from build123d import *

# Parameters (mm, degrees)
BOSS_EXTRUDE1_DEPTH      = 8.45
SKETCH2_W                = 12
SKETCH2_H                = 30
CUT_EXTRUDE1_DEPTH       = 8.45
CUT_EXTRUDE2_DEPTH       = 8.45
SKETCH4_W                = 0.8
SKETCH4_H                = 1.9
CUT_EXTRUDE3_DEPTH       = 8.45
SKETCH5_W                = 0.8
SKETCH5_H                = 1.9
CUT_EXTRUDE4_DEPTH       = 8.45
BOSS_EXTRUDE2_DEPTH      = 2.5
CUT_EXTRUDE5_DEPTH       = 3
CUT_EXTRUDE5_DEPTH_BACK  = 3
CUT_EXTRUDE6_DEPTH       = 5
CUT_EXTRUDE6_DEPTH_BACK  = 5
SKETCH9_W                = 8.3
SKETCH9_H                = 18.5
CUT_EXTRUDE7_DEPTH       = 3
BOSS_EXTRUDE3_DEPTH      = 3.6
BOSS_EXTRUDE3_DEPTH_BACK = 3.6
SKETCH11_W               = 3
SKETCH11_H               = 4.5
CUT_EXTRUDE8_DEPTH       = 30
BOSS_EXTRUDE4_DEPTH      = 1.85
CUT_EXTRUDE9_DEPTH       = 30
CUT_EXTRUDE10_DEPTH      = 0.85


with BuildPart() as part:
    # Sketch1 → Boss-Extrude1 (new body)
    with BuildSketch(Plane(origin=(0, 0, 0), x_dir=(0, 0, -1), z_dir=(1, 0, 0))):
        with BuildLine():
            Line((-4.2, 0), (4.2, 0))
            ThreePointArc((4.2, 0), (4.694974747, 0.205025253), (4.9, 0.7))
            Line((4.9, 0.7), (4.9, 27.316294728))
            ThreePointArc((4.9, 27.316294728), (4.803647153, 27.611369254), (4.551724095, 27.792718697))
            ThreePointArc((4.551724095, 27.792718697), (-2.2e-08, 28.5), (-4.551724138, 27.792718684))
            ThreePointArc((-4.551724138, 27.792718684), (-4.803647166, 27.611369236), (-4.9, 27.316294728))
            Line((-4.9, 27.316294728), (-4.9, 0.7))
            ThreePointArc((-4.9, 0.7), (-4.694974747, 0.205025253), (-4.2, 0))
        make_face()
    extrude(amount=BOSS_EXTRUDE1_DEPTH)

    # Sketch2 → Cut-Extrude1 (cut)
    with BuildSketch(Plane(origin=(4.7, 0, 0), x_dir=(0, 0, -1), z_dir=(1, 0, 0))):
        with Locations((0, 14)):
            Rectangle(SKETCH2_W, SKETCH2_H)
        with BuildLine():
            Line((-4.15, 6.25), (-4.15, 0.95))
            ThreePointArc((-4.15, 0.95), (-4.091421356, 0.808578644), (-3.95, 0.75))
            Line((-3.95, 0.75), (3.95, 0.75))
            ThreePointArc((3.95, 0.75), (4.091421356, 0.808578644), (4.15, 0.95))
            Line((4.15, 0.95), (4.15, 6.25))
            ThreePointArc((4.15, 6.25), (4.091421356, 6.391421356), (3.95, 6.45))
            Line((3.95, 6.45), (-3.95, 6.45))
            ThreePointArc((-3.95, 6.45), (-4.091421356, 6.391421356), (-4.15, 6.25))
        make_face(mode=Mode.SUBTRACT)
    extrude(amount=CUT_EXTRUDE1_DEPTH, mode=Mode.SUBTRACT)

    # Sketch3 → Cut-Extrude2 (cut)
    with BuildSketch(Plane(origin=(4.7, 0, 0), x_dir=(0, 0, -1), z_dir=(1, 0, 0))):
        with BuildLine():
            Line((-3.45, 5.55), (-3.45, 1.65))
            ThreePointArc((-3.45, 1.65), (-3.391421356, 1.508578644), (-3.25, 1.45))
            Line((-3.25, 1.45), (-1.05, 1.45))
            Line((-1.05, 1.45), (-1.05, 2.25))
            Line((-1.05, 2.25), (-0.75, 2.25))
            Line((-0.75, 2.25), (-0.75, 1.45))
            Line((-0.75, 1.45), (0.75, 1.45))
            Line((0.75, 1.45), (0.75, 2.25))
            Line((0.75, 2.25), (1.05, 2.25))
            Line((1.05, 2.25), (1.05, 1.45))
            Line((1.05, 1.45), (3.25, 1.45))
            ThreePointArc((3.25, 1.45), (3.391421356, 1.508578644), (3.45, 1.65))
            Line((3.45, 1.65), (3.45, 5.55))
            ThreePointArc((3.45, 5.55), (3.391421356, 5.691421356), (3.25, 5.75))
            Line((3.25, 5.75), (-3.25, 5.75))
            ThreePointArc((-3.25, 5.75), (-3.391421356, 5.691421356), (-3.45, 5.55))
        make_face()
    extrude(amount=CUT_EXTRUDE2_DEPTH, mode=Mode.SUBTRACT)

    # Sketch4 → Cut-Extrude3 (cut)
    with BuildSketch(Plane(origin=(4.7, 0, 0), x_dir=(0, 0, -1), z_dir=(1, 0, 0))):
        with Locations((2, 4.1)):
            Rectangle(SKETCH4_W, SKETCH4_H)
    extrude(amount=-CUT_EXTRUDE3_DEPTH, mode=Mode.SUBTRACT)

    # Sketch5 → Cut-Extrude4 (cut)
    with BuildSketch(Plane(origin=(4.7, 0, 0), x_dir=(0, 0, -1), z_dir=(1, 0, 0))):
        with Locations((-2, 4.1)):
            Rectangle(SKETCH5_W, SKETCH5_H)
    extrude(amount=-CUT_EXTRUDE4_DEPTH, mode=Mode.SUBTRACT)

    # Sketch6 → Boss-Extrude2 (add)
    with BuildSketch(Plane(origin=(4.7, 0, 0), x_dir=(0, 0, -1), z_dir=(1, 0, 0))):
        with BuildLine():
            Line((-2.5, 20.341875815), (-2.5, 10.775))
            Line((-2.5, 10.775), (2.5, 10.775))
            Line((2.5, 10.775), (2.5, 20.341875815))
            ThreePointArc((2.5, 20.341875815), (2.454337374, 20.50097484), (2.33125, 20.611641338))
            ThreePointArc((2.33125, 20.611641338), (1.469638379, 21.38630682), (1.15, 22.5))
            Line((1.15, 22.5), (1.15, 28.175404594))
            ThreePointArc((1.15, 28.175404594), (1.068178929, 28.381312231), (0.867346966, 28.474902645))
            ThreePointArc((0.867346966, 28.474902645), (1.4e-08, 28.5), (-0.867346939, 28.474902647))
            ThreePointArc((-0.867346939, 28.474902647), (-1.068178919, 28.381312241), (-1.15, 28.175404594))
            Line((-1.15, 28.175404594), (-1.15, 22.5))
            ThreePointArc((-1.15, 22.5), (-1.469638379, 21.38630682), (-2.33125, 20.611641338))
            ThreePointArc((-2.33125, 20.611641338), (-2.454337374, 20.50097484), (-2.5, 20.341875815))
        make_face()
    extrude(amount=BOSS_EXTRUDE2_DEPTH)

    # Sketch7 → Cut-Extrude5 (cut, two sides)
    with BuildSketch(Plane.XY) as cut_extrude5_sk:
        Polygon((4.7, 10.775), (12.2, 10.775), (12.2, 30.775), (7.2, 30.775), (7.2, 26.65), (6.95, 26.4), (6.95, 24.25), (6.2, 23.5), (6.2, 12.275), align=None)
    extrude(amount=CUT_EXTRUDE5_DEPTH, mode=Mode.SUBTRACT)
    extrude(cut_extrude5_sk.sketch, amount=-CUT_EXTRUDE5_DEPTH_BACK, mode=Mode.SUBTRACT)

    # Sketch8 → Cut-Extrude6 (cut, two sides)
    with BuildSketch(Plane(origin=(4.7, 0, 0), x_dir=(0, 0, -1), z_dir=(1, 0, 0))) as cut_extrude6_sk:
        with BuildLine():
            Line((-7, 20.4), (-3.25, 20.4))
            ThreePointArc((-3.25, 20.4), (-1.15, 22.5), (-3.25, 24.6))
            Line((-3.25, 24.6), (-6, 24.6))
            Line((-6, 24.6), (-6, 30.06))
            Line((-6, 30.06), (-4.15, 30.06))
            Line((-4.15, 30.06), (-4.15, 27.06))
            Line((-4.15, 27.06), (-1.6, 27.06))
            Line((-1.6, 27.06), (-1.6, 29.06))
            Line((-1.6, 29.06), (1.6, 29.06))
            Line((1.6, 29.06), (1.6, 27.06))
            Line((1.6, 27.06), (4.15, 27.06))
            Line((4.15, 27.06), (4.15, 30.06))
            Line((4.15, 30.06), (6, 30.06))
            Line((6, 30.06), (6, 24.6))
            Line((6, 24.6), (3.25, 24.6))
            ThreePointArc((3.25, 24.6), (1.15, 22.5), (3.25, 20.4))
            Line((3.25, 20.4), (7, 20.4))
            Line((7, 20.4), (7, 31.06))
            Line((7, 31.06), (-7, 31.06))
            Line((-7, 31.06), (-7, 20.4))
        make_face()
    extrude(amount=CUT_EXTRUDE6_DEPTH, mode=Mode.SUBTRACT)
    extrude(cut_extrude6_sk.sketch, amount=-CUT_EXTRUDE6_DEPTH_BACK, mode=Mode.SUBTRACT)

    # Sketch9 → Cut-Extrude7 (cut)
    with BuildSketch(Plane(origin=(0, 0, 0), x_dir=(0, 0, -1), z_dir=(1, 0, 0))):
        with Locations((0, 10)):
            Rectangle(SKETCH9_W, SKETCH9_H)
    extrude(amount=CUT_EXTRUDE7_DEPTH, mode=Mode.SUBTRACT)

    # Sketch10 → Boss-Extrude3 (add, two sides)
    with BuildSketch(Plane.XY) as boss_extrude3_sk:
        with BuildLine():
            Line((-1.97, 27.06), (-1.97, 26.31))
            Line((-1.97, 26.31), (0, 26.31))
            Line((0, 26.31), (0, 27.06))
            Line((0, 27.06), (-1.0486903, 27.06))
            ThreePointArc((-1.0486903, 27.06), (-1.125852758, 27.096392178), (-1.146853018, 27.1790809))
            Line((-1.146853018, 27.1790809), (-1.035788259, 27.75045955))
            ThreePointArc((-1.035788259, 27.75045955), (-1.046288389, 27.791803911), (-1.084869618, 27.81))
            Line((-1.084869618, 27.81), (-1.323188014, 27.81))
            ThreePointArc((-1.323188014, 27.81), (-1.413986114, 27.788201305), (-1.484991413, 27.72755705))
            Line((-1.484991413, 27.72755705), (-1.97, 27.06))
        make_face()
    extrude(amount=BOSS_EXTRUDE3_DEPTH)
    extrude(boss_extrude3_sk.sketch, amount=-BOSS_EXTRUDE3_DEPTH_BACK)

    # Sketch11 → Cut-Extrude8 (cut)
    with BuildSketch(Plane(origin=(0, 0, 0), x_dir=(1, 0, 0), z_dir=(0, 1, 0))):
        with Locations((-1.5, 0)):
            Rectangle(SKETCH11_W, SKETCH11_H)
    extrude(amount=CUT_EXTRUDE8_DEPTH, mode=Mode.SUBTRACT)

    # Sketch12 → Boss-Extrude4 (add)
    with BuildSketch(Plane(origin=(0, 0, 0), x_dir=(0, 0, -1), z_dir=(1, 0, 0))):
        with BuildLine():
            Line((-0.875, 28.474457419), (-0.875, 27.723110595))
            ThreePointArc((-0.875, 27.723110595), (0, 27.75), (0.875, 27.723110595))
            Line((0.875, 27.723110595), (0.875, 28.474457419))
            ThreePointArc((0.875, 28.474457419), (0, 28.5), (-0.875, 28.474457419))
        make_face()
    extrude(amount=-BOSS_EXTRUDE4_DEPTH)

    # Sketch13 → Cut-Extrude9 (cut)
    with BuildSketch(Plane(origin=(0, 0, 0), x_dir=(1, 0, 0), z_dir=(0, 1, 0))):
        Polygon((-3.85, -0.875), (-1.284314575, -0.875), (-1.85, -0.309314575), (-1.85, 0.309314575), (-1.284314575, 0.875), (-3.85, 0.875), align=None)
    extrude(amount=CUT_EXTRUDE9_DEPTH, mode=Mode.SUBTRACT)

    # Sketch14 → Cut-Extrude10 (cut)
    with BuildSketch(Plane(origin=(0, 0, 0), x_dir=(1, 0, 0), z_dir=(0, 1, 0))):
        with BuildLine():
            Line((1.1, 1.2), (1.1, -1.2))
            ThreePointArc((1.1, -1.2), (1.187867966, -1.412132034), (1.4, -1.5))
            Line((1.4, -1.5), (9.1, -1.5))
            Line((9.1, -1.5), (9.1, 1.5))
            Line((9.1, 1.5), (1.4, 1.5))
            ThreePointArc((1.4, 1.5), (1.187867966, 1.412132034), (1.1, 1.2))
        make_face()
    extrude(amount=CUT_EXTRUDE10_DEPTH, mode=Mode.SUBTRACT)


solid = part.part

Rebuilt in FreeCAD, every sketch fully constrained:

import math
import FreeCAD as App
import Part
import Sketcher
Q = App.Units.Quantity

doc = App.newDocument("Part")
body = doc.addObject("PartDesign::Body", "Body")

# Sketch on YZ plane
sketch1 = doc.addObject("Sketcher::SketchObject", "Sketch")
body.addObject(sketch1)
sketch1.AttachmentSupport = (doc.YZ_Plane, [""])
sketch1.MapMode = "FlatFace"
sketch1.addGeometry([
    Part.LineSegment(App.Vector(0, 4.2, 0), App.Vector(0, -4.2, 0)),  # 0
    Part.ArcOfCircle(Part.Circle(App.Vector(0.7, -4.2, 0), App.Vector(0, 0, 1), 0.7), math.radians(180), math.radians(270)),  # 1
    Part.LineSegment(App.Vector(0.7, -4.9, 0), App.Vector(27.32, -4.9, 0)),  # 2
    Part.ArcOfCircle(Part.Circle(App.Vector(27.32, -4.4, 0), App.Vector(0, 0, 1), 0.5), math.radians(-90), math.radians(-18)),  # 3
    Part.ArcOfCircle(Part.Circle(App.Vector(13.5, 0, 0), App.Vector(0, 0, 1), 15), math.radians(-18), math.radians(18)),  # 4
    Part.ArcOfCircle(Part.Circle(App.Vector(27.32, 4.4, 0), App.Vector(0, 0, 1), 0.5), math.radians(18), math.radians(90)),  # 5
    Part.LineSegment(App.Vector(27.32, 4.9, 0), App.Vector(0.7, 4.9, 0)),  # 6
    Part.ArcOfCircle(Part.Circle(App.Vector(0.7, 4.2, 0), App.Vector(0, 0, 1), 0.7), math.radians(90), math.radians(180)),  # 7
], False)
sketch1.addConstraint([
    Sketcher.Constraint("Tangent", 0, 2, 1, 1),
    Sketcher.Constraint("Tangent", 1, 2, 2, 1),
    Sketcher.Constraint("Tangent", 2, 2, 3, 1),
    Sketcher.Constraint("Tangent", 3, 2, 4, 1),
    Sketcher.Constraint("Tangent", 4, 2, 5, 1),
    Sketcher.Constraint("Tangent", 5, 2, 6, 1),
    Sketcher.Constraint("Tangent", 6, 2, 7, 1),
    Sketcher.Constraint("Tangent", 7, 2, 0, 1),
    Sketcher.Constraint("Vertical", 0),
    Sketcher.Constraint("Horizontal", 2),
    Sketcher.Constraint("Horizontal", 6),
    Sketcher.Constraint("Equal", 3, 5),
    Sketcher.Constraint("Equal", 1, 7),
    Sketcher.Constraint("Symmetric", 0, 2, 7, 2, -1, 1),
    Sketcher.Constraint("PointOnObject", 4, 3, -1),
    Sketcher.Constraint("Radius", 4, 15.0),
    Sketcher.Constraint("Radius", 1, 0.7),
    Sketcher.Constraint("Radius", 3, 0.5),
    Sketcher.Constraint("DistanceY", 0, 2, 0, 1, 8.4),
    Sketcher.Constraint("DistanceX", -1, 1, 4, 3, 13.5),
])
pad1 = doc.addObject("PartDesign::Pad", "Pad")
body.addObject(pad1)
pad1.Profile = sketch1
pad1.Length = 8.45

# Sketch on YZ plane
sketch2 = doc.addObject("Sketcher::SketchObject", "Sketch001")
body.addObject(sketch2)
sketch2.AttachmentSupport = (doc.YZ_Plane, [""])
sketch2.MapMode = "FlatFace"
sketch2.AttachmentOffset = App.Placement(App.Vector(0, 0, 4.7), App.Rotation())
sketch2.addGeometry([
    Part.LineSegment(App.Vector(29, 6, 0), App.Vector(-1, 6, 0)),  # 0
    Part.LineSegment(App.Vector(-1, 6, 0), App.Vector(-1, -6, 0)),  # 1
    Part.LineSegment(App.Vector(-1, -6, 0), App.Vector(29, -6, 0)),  # 2
    Part.LineSegment(App.Vector(29, -6, 0), App.Vector(29, 6, 0)),  # 3
    Part.LineSegment(App.Vector(0.95, 4.15, 0), App.Vector(6.25, 4.15, 0)),  # 4
    Part.ArcOfCircle(Part.Circle(App.Vector(6.25, 3.95, 0), App.Vector(0, 0, 1), 0.2), math.radians(0), math.radians(90)),  # 5
    Part.LineSegment(App.Vector(6.45, 3.95, 0), App.Vector(6.45, -3.95, 0)),  # 6
    Part.ArcOfCircle(Part.Circle(App.Vector(6.25, -3.95, 0), App.Vector(0, 0, 1), 0.2), math.radians(-90), math.radians(0)),  # 7
    Part.LineSegment(App.Vector(6.25, -4.15, 0), App.Vector(0.95, -4.15, 0)),  # 8
    Part.ArcOfCircle(Part.Circle(App.Vector(0.95, -3.95, 0), App.Vector(0, 0, 1), 0.2), math.radians(-180), math.radians(-90)),  # 9
    Part.LineSegment(App.Vector(0.75, -3.95, 0), App.Vector(0.75, 3.95, 0)),  # 10
    Part.ArcOfCircle(Part.Circle(App.Vector(0.95, 3.95, 0), App.Vector(0, 0, 1), 0.2), math.radians(90), math.radians(180)),  # 11
], False)
sketch2.addConstraint([
    Sketcher.Constraint("Coincident", 0, 2, 1, 1),
    Sketcher.Constraint("Coincident", 1, 2, 2, 1),
    Sketcher.Constraint("Coincident", 2, 2, 3, 1),
    Sketcher.Constraint("Coincident", 3, 2, 0, 1),
    Sketcher.Constraint("Tangent", 4, 2, 5, 2),
    Sketcher.Constraint("Tangent", 5, 1, 6, 1),
    Sketcher.Constraint("Tangent", 6, 2, 7, 2),
    Sketcher.Constraint("Tangent", 7, 1, 8, 1),
    Sketcher.Constraint("Tangent", 8, 2, 9, 2),
    Sketcher.Constraint("Tangent", 9, 1, 10, 1),
    Sketcher.Constraint("Tangent", 10, 2, 11, 2),
    Sketcher.Constraint("Tangent", 11, 1, 4, 1),
    Sketcher.Constraint("Horizontal", 0),
    Sketcher.Constraint("Vertical", 1),
    Sketcher.Constraint("Horizontal", 2),
    Sketcher.Constraint("Vertical", 3),
    Sketcher.Constraint("Horizontal", 4),
    Sketcher.Constraint("Vertical", 6),
    Sketcher.Constraint("Horizontal", 8),
    Sketcher.Constraint("Vertical", 10),
    Sketcher.Constraint("Equal", 5, 7),
    Sketcher.Constraint("Equal", 7, 9),
    Sketcher.Constraint("Equal", 9, 11),
    Sketcher.Constraint("Radius", 5, 0.2),
    Sketcher.Constraint("DistanceX", 0, 2, 0, 1, 30.0),
    Sketcher.Constraint("DistanceY", 1, 2, 1, 1, 12.0),
    Sketcher.Constraint("DistanceX", 4, 1, 4, 2, 5.3),
    Sketcher.Constraint("DistanceY", 6, 2, 6, 1, 7.9),
    Sketcher.Constraint("DistanceX", 0, 2, -1, 1, 1.0),
    Sketcher.Constraint("DistanceY", -1, 1, 0, 2, 6.0),
    Sketcher.Constraint("DistanceX", -1, 1, 5, 3, 6.25),
    Sketcher.Constraint("DistanceY", -1, 1, 5, 3, 3.95),
])
pocket1 = doc.addObject("PartDesign::Pocket", "Pocket")
body.addObject(pocket1)
pocket1.Profile = sketch2
pocket1.Length = 8.45
pocket1.Reversed = True

# Sketch on YZ plane
sketch3 = doc.addObject("Sketcher::SketchObject", "Sketch002")
body.addObject(sketch3)
sketch3.AttachmentSupport = (doc.YZ_Plane, [""])
sketch3.MapMode = "FlatFace"
sketch3.AttachmentOffset = App.Placement(App.Vector(0, 0, 4.7), App.Rotation())
sketch3.addGeometry([
    Part.LineSegment(App.Vector(5.55, 3.45, 0), App.Vector(1.65, 3.45, 0)),  # 0
    Part.ArcOfCircle(Part.Circle(App.Vector(1.65, 3.25, 0), App.Vector(0, 0, 1), 0.2), math.radians(90), math.radians(180)),  # 1
    Part.LineSegment(App.Vector(1.45, 3.25, 0), App.Vector(1.45, 1.05, 0)),  # 2
    Part.LineSegment(App.Vector(1.45, 1.05, 0), App.Vector(2.25, 1.05, 0)),  # 3
    Part.LineSegment(App.Vector(2.25, 1.05, 0), App.Vector(2.25, 0.75, 0)),  # 4
    Part.LineSegment(App.Vector(2.25, 0.75, 0), App.Vector(1.45, 0.75, 0)),  # 5
    Part.LineSegment(App.Vector(1.45, 0.75, 0), App.Vector(1.45, -0.75, 0)),  # 6
    Part.LineSegment(App.Vector(1.45, -0.75, 0), App.Vector(2.25, -0.75, 0)),  # 7
    Part.LineSegment(App.Vector(2.25, -0.75, 0), App.Vector(2.25, -1.05, 0)),  # 8
    Part.LineSegment(App.Vector(2.25, -1.05, 0), App.Vector(1.45, -1.05, 0)),  # 9
    Part.LineSegment(App.Vector(1.45, -1.05, 0), App.Vector(1.45, -3.25, 0)),  # 10
    Part.ArcOfCircle(Part.Circle(App.Vector(1.65, -3.25, 0), App.Vector(0, 0, 1), 0.2), math.radians(-180), math.radians(-90)),  # 11
    Part.LineSegment(App.Vector(1.65, -3.45, 0), App.Vector(5.55, -3.45, 0)),  # 12
    Part.ArcOfCircle(Part.Circle(App.Vector(5.55, -3.25, 0), App.Vector(0, 0, 1), 0.2), math.radians(-90), math.radians(0)),  # 13
    Part.LineSegment(App.Vector(5.75, -3.25, 0), App.Vector(5.75, 3.25, 0)),  # 14
    Part.ArcOfCircle(Part.Circle(App.Vector(5.55, 3.25, 0), App.Vector(0, 0, 1), 0.2), math.radians(0), math.radians(90)),  # 15
], False)
sketch3.addConstraint([
    Sketcher.Constraint("Tangent", 0, 2, 1, 1),
    Sketcher.Constraint("Tangent", 1, 2, 2, 1),
    Sketcher.Constraint("Coincident", 2, 2, 3, 1),
    Sketcher.Constraint("Coincident", 3, 2, 4, 1),
    Sketcher.Constraint("Coincident", 4, 2, 5, 1),
    Sketcher.Constraint("Coincident", 5, 2, 6, 1),
    Sketcher.Constraint("Coincident", 6, 2, 7, 1),
    Sketcher.Constraint("Coincident", 7, 2, 8, 1),
    Sketcher.Constraint("Coincident", 8, 2, 9, 1),
    Sketcher.Constraint("Coincident", 9, 2, 10, 1),
    Sketcher.Constraint("Tangent", 10, 2, 11, 1),
    Sketcher.Constraint("Tangent", 11, 2, 12, 1),
    Sketcher.Constraint("Tangent", 12, 2, 13, 1),
    Sketcher.Constraint("Tangent", 13, 2, 14, 1),
    Sketcher.Constraint("Tangent", 14, 2, 15, 1),
    Sketcher.Constraint("Tangent", 15, 2, 0, 1),
    Sketcher.Constraint("Horizontal", 0),
    Sketcher.Constraint("Vertical", 2),
    Sketcher.Constraint("Horizontal", 3),
    Sketcher.Constraint("Vertical", 4),
    Sketcher.Constraint("Horizontal", 5),
    Sketcher.Constraint("Vertical", 6),
    Sketcher.Constraint("Horizontal", 7),
    Sketcher.Constraint("Vertical", 8),
    Sketcher.Constraint("Horizontal", 9),
    Sketcher.Constraint("Vertical", 10),
    Sketcher.Constraint("Horizontal", 12),
    Sketcher.Constraint("Vertical", 14),
    Sketcher.Constraint("Equal", 1, 11),
    Sketcher.Constraint("Equal", 11, 13),
    Sketcher.Constraint("Equal", 13, 15),
    Sketcher.Constraint("Symmetric", 1, 3, 11, 3, -1),
    Sketcher.Constraint("Symmetric", 4, 2, 7, 2, -1),
    Sketcher.Constraint("Vertical", 2, 2, 5, 2),
    Sketcher.Constraint("Equal", 4, 8),
    Sketcher.Constraint("Radius", 1, 0.2),
    Sketcher.Constraint("DistanceX", 0, 2, 0, 1, 3.9),
    Sketcher.Constraint("DistanceX", 3, 1, 3, 2, 0.8),
    Sketcher.Constraint("DistanceY", 2, 2, 2, 1, 2.2),
    Sketcher.Constraint("DistanceY", 4, 2, 4, 1, 0.3),
    Sketcher.Constraint("DistanceY", 6, 2, 6, 1, 1.5),
    Sketcher.Constraint("DistanceX", -1, 1, 1, 3, 1.65),
])
pocket2 = doc.addObject("PartDesign::Pocket", "Pocket001")
body.addObject(pocket2)
pocket2.Profile = sketch3
pocket2.Length = 8.45
pocket2.Reversed = True

# Sketch on YZ plane
sketch4 = doc.addObject("Sketcher::SketchObject", "Sketch003")
body.addObject(sketch4)
sketch4.AttachmentSupport = (doc.YZ_Plane, [""])
sketch4.MapMode = "FlatFace"
sketch4.AttachmentOffset = App.Placement(App.Vector(0, 0, 4.7), App.Rotation())
sketch4.addGeometry([
    Part.LineSegment(App.Vector(5, -1.6, 0), App.Vector(3.1, -1.6, 0)),
    Part.LineSegment(App.Vector(3.1, -1.6, 0), App.Vector(3.1, -2.4, 0)),
    Part.LineSegment(App.Vector(3.1, -2.4, 0), App.Vector(5, -2.4, 0)),
    Part.LineSegment(App.Vector(5, -2.4, 0), App.Vector(5, -1.6, 0)),
], False)
sketch4.addConstraint([
    Sketcher.Constraint("Coincident", 0, 2, 1, 1),
    Sketcher.Constraint("Coincident", 1, 2, 2, 1),
    Sketcher.Constraint("Coincident", 2, 2, 3, 1),
    Sketcher.Constraint("Coincident", 3, 2, 0, 1),
    Sketcher.Constraint("Horizontal", 0),
    Sketcher.Constraint("Vertical", 1),
    Sketcher.Constraint("Horizontal", 2),
    Sketcher.Constraint("Vertical", 3),
    Sketcher.Constraint("DistanceX", 0, 2, 0, 1, 1.9),
    Sketcher.Constraint("DistanceY", 1, 2, 1, 1, 0.8),
    Sketcher.Constraint("DistanceY", 0, 2, -1, 1, 1.6),
    Sketcher.Constraint("DistanceX", -1, 1, 0, 2, 3.15),
])
pocket3 = doc.addObject("PartDesign::Pocket", "Pocket002")
body.addObject(pocket3)
pocket3.Profile = sketch4
pocket3.Length = 8.45

# Sketch on YZ plane
sketch5 = doc.addObject("Sketcher::SketchObject", "Sketch004")
body.addObject(sketch5)
sketch5.AttachmentSupport = (doc.YZ_Plane, [""])
sketch5.MapMode = "FlatFace"
sketch5.AttachmentOffset = App.Placement(App.Vector(0, 0, 4.7), App.Rotation())
sketch5.addGeometry([
    Part.LineSegment(App.Vector(5, 2.4, 0), App.Vector(3.1, 2.4, 0)),
    Part.LineSegment(App.Vector(3.1, 2.4, 0), App.Vector(3.1, 1.6, 0)),
    Part.LineSegment(App.Vector(3.1, 1.6, 0), App.Vector(5, 1.6, 0)),
    Part.LineSegment(App.Vector(5, 1.6, 0), App.Vector(5, 2.4, 0)),
], False)
sketch5.addConstraint([
    Sketcher.Constraint("Coincident", 0, 2, 1, 1),
    Sketcher.Constraint("Coincident", 1, 2, 2, 1),
    Sketcher.Constraint("Coincident", 2, 2, 3, 1),
    Sketcher.Constraint("Coincident", 3, 2, 0, 1),
    Sketcher.Constraint("Horizontal", 0),
    Sketcher.Constraint("Vertical", 1),
    Sketcher.Constraint("Horizontal", 2),
    Sketcher.Constraint("Vertical", 3),
    Sketcher.Constraint("DistanceX", 0, 2, 0, 1, 1.9),
    Sketcher.Constraint("DistanceY", 1, 2, 1, 1, 0.8),
    Sketcher.Constraint("DistanceY", -1, 1, 0, 2, 2.4),
    Sketcher.Constraint("DistanceX", -1, 1, 0, 2, 3.15),
])
pocket4 = doc.addObject("PartDesign::Pocket", "Pocket003")
body.addObject(pocket4)
pocket4.Profile = sketch5
pocket4.Length = 8.45

# Sketch on YZ plane
sketch6 = doc.addObject("Sketcher::SketchObject", "Sketch005")
body.addObject(sketch6)
sketch6.AttachmentSupport = (doc.YZ_Plane, [""])
sketch6.MapMode = "FlatFace"
sketch6.AttachmentOffset = App.Placement(App.Vector(0, 0, 4.7), App.Rotation())
sketch6.addGeometry([
    Part.LineSegment(App.Vector(20.34, 2.5, 0), App.Vector(10.78, 2.5, 0)),  # 0
    Part.LineSegment(App.Vector(10.78, 2.5, 0), App.Vector(10.78, -2.5, 0)),  # 1
    Part.LineSegment(App.Vector(10.78, -2.5, 0), App.Vector(20.34, -2.5, 0)),  # 2
    Part.ArcOfCircle(Part.Circle(App.Vector(20.34, -2.2, 0), App.Vector(0, 0, 1), 0.3), math.radians(-90), math.radians(-26)),  # 3
    Part.ArcOfCircle(Part.Circle(App.Vector(22.5, -3.25, 0), App.Vector(0, 0, 1), 2.1), math.radians(90), math.radians(154)),  # 4
    Part.LineSegment(App.Vector(22.5, -1.15, 0), App.Vector(28.18, -1.15, 0)),  # 5
    Part.ArcOfCircle(Part.Circle(App.Vector(28.18, -0.85, 0), App.Vector(0, 0, 1), 0.3), math.radians(-90), math.radians(-3)),  # 6
    Part.ArcOfCircle(Part.Circle(App.Vector(13.5, 0, 0), App.Vector(0, 0, 1), 15), math.radians(-3.31), math.radians(3.31)),  # 7
    Part.ArcOfCircle(Part.Circle(App.Vector(28.18, 0.85, 0), App.Vector(0, 0, 1), 0.3), math.radians(3), math.radians(90)),  # 8
    Part.LineSegment(App.Vector(28.18, 1.15, 0), App.Vector(22.5, 1.15, 0)),  # 9
    Part.ArcOfCircle(Part.Circle(App.Vector(22.5, 3.25, 0), App.Vector(0, 0, 1), 2.1), math.radians(-154), math.radians(-90)),  # 10
    Part.ArcOfCircle(Part.Circle(App.Vector(20.34, 2.2, 0), App.Vector(0, 0, 1), 0.3), math.radians(26), math.radians(90)),  # 11
], False)
sketch6.addConstraint([
    Sketcher.Constraint("Coincident", 0, 2, 1, 1),
    Sketcher.Constraint("Coincident", 1, 2, 2, 1),
    Sketcher.Constraint("Tangent", 2, 2, 3, 1),
    Sketcher.Constraint("Tangent", 3, 2, 4, 2),
    Sketcher.Constraint("Tangent", 4, 1, 5, 1),
    Sketcher.Constraint("Tangent", 5, 2, 6, 1),
    Sketcher.Constraint("Tangent", 6, 2, 7, 1),
    Sketcher.Constraint("Tangent", 7, 2, 8, 1),
    Sketcher.Constraint("Tangent", 8, 2, 9, 1),
    Sketcher.Constraint("Tangent", 9, 2, 10, 2),
    Sketcher.Constraint("Tangent", 10, 1, 11, 1),
    Sketcher.Constraint("Tangent", 11, 2, 0, 1),
    Sketcher.Constraint("Horizontal", 0),
    Sketcher.Constraint("Vertical", 1),
    Sketcher.Constraint("Horizontal", 2),
    Sketcher.Constraint("Horizontal", 5),
    Sketcher.Constraint("Horizontal", 9),
    Sketcher.Constraint("Equal", 3, 6),
    Sketcher.Constraint("Equal", 6, 8),
    Sketcher.Constraint("Equal", 4, 10),
    Sketcher.Constraint("Equal", 8, 11),
    Sketcher.Constraint("Symmetric", 6, 3, 8, 3, -1),
    Sketcher.Constraint("Symmetric", 3, 3, 11, 3, -1),
    Sketcher.Constraint("Radius", 7, 15.0),
    Sketcher.Constraint("Radius", 3, 0.3),
    Sketcher.Constraint("Radius", 4, 2.1),
    Sketcher.Constraint("DistanceY", 1, 2, 1, 1, 5.0),
    Sketcher.Constraint("DistanceX", 7, 3, 4, 3, 9.0),
    Sketcher.Constraint("DistanceY", 5, 2, 8, 3, 2.0),
    Sketcher.Constraint("DistanceX", -1, 1, 4, 3, 22.5),
    Sketcher.Constraint("DistanceX", -1, 1, 0, 2, 10.775),
])
pad2 = doc.addObject("PartDesign::Pad", "Pad001")
body.addObject(pad2)
pad2.Profile = sketch6
pad2.Length = 2.5

# Sketch on XY plane
sketch7 = doc.addObject("Sketcher::SketchObject", "Sketch006")
body.addObject(sketch7)
sketch7.AttachmentSupport = (doc.XY_Plane, [""])
sketch7.MapMode = "FlatFace"
sketch7.addGeometry([
    Part.LineSegment(App.Vector(4.7, 10.78, 0), App.Vector(12.2, 10.78, 0)),  # 0
    Part.LineSegment(App.Vector(12.2, 10.78, 0), App.Vector(12.2, 30.77, 0)),  # 1
    Part.LineSegment(App.Vector(12.2, 30.77, 0), App.Vector(7.2, 30.77, 0)),  # 2
    Part.LineSegment(App.Vector(7.2, 30.77, 0), App.Vector(7.2, 26.65, 0)),  # 3
    Part.LineSegment(App.Vector(7.2, 26.65, 0), App.Vector(6.95, 26.4, 0)),  # 4
    Part.LineSegment(App.Vector(6.95, 26.4, 0), App.Vector(6.95, 24.25, 0)),  # 5
    Part.LineSegment(App.Vector(6.95, 24.25, 0), App.Vector(6.2, 23.5, 0)),  # 6
    Part.LineSegment(App.Vector(6.2, 23.5, 0), App.Vector(6.2, 12.28, 0)),  # 7
    Part.LineSegment(App.Vector(6.2, 12.28, 0), App.Vector(4.7, 10.78, 0)),  # 8
], False)
sketch7.addConstraint([
    Sketcher.Constraint("Coincident", 0, 2, 1, 1),
    Sketcher.Constraint("Coincident", 1, 2, 2, 1),
    Sketcher.Constraint("Coincident", 2, 2, 3, 1),
    Sketcher.Constraint("Coincident", 3, 2, 4, 1),
    Sketcher.Constraint("Coincident", 4, 2, 5, 1),
    Sketcher.Constraint("Coincident", 5, 2, 6, 1),
    Sketcher.Constraint("Coincident", 6, 2, 7, 1),
    Sketcher.Constraint("Coincident", 7, 2, 8, 1),
    Sketcher.Constraint("Coincident", 8, 2, 0, 1),
    Sketcher.Constraint("Horizontal", 0),
    Sketcher.Constraint("Vertical", 1),
    Sketcher.Constraint("Horizontal", 2),
    Sketcher.Constraint("Vertical", 3),
    Sketcher.Constraint("Vertical", 5),
    Sketcher.Constraint("Vertical", 7),
    Sketcher.Constraint("Parallel", 4, 6),
    Sketcher.Constraint("Parallel", 6, 8),
    Sketcher.Constraint("DistanceX", 2, 2, 2, 1, 5.0),
    Sketcher.Constraint("DistanceY", 1, 1, 1, 2, 20.0),
    Sketcher.Constraint("Angle", 4, Q("-135 deg")),
    Sketcher.Constraint("DistanceX", 0, 1, 0, 2, 7.5),
    Sketcher.Constraint("DistanceX", 6, 2, 3, 2, 1.0),
    Sketcher.Constraint("DistanceY", 5, 2, 5, 1, 2.15),
    Sketcher.Constraint("DistanceX", -1, 1, 0, 2, 12.2),
    Sketcher.Constraint("DistanceY", -1, 1, 4, 2, 26.4),
    Sketcher.Constraint("DistanceY", -1, 1, 6, 2, 23.5),
    Sketcher.Constraint("DistanceY", 3, 2, 3, 1, 4.125),
])
pocket5 = doc.addObject("PartDesign::Pocket", "Pocket004")
body.addObject(pocket5)
pocket5.Profile = sketch7
pocket5.Type = "ThroughAll"
pocket5.Midplane = True

# Sketch on YZ plane
sketch8 = doc.addObject("Sketcher::SketchObject", "Sketch007")
body.addObject(sketch8)
sketch8.AttachmentSupport = (doc.YZ_Plane, [""])
sketch8.MapMode = "FlatFace"
sketch8.AttachmentOffset = App.Placement(App.Vector(0, 0, 4.7), App.Rotation())
sketch8.addGeometry([
    Part.LineSegment(App.Vector(20.4, 7, 0), App.Vector(20.4, 3.2, 0)),  # 0
    Part.ArcOfCircle(Part.Circle(App.Vector(22.5, 3.2, 0), App.Vector(0, 0, 1), 2.1), math.radians(180), math.radians(360)),  # 1
    Part.LineSegment(App.Vector(24.6, 3.2, 0), App.Vector(24.6, 6, 0)),  # 2
    Part.LineSegment(App.Vector(24.6, 6, 0), App.Vector(30.1, 6, 0)),  # 3
    Part.LineSegment(App.Vector(30.1, 6, 0), App.Vector(30.1, 4.2, 0)),  # 4
    Part.LineSegment(App.Vector(30.1, 4.2, 0), App.Vector(27.1, 4.2, 0)),  # 5
    Part.LineSegment(App.Vector(27.1, 4.2, 0), App.Vector(27.1, 1.6, 0)),  # 6
    Part.LineSegment(App.Vector(27.1, 1.6, 0), App.Vector(29.1, 1.6, 0)),  # 7
    Part.LineSegment(App.Vector(29.1, 1.6, 0), App.Vector(29.1, -1.6, 0)),  # 8
    Part.LineSegment(App.Vector(29.1, -1.6, 0), App.Vector(27.1, -1.6, 0)),  # 9
    Part.LineSegment(App.Vector(27.1, -1.6, 0), App.Vector(27.1, -4.2, 0)),  # 10
    Part.LineSegment(App.Vector(27.1, -4.2, 0), App.Vector(30.1, -4.2, 0)),  # 11
    Part.LineSegment(App.Vector(30.1, -4.2, 0), App.Vector(30.1, -6, 0)),  # 12
    Part.LineSegment(App.Vector(30.1, -6, 0), App.Vector(24.6, -6, 0)),  # 13
    Part.LineSegment(App.Vector(24.6, -6, 0), App.Vector(24.6, -3.2, 0)),  # 14
    Part.ArcOfCircle(Part.Circle(App.Vector(22.5, -3.2, 0), App.Vector(0, 0, 1), 2.1), math.radians(0), math.radians(180)),  # 15
    Part.LineSegment(App.Vector(20.4, -3.2, 0), App.Vector(20.4, -7, 0)),  # 16
    Part.LineSegment(App.Vector(20.4, -7, 0), App.Vector(31.1, -7, 0)),  # 17
    Part.LineSegment(App.Vector(31.1, -7, 0), App.Vector(31.1, 7, 0)),  # 18
    Part.LineSegment(App.Vector(31.1, 7, 0), App.Vector(20.4, 7, 0)),  # 19
], False)
sketch8.addConstraint([
    Sketcher.Constraint("Tangent", 0, 2, 1, 1),
    Sketcher.Constraint("Tangent", 1, 2, 2, 1),
    Sketcher.Constraint("Coincident", 2, 2, 3, 1),
    Sketcher.Constraint("Coincident", 3, 2, 4, 1),
    Sketcher.Constraint("Coincident", 4, 2, 5, 1),
    Sketcher.Constraint("Coincident", 5, 2, 6, 1),
    Sketcher.Constraint("Coincident", 6, 2, 7, 1),
    Sketcher.Constraint("Coincident", 7, 2, 8, 1),
    Sketcher.Constraint("Coincident", 8, 2, 9, 1),
    Sketcher.Constraint("Coincident", 9, 2, 10, 1),
    Sketcher.Constraint("Coincident", 10, 2, 11, 1),
    Sketcher.Constraint("Coincident", 11, 2, 12, 1),
    Sketcher.Constraint("Coincident", 12, 2, 13, 1),
    Sketcher.Constraint("Coincident", 13, 2, 14, 1),
    Sketcher.Constraint("Tangent", 14, 2, 15, 1),
    Sketcher.Constraint("Tangent", 15, 2, 16, 1),
    Sketcher.Constraint("Coincident", 16, 2, 17, 1),
    Sketcher.Constraint("Coincident", 17, 2, 18, 1),
    Sketcher.Constraint("Coincident", 18, 2, 19, 1),
    Sketcher.Constraint("Coincident", 19, 2, 0, 1),
    Sketcher.Constraint("Vertical", 0),
    Sketcher.Constraint("Vertical", 2),
    Sketcher.Constraint("Horizontal", 3),
    Sketcher.Constraint("Vertical", 4),
    Sketcher.Constraint("Horizontal", 5),
    Sketcher.Constraint("Vertical", 6),
    Sketcher.Constraint("Horizontal", 7),
    Sketcher.Constraint("Vertical", 8),
    Sketcher.Constraint("Horizontal", 9),
    Sketcher.Constraint("Vertical", 10),
    Sketcher.Constraint("Horizontal", 11),
    Sketcher.Constraint("Vertical", 12),
    Sketcher.Constraint("Horizontal", 13),
    Sketcher.Constraint("Vertical", 14),
    Sketcher.Constraint("Vertical", 16),
    Sketcher.Constraint("Horizontal", 17),
    Sketcher.Constraint("Vertical", 18),
    Sketcher.Constraint("Horizontal", 19),
    Sketcher.Constraint("Equal", 1, 15),
    Sketcher.Constraint("Symmetric", 1, 3, 15, 3, -1),
    Sketcher.Constraint("Symmetric", 6, 2, 9, 2, -1),
    Sketcher.Constraint("Symmetric", 4, 2, 11, 2, -1),
    Sketcher.Constraint("Equal", 4, 12),
    Sketcher.Constraint("Equal", 0, 16),
    Sketcher.Constraint("Radius", 1, 2.1),
    Sketcher.Constraint("DistanceX", 5, 2, 5, 1, 3.0),
    Sketcher.Constraint("DistanceX", 7, 1, 7, 2, 2.0),
    Sketcher.Constraint("DistanceY", 18, 1, 18, 2, 14.0),
    Sketcher.Constraint("DistanceY", 8, 2, 8, 1, 3.2),
    Sketcher.Constraint("DistanceY", -1, 1, 2, 2, 6.0),
    Sketcher.Constraint("DistanceX", 12, 2, 17, 2, 1.0),
    Sketcher.Constraint("DistanceX", 3, 1, 3, 2, 5.46),
    Sketcher.Constraint("DistanceY", 0, 2, 0, 1, 3.75),
    Sketcher.Constraint("DistanceY", 4, 2, 4, 1, 1.85),
    Sketcher.Constraint("DistanceX", -1, 1, 1, 3, 22.5),
])
pocket6 = doc.addObject("PartDesign::Pocket", "Pocket005")
body.addObject(pocket6)
pocket6.Profile = sketch8
pocket6.Type = "ThroughAll"
pocket6.Midplane = True

# Sketch on YZ plane
sketch9 = doc.addObject("Sketcher::SketchObject", "Sketch008")
body.addObject(sketch9)
sketch9.AttachmentSupport = (doc.YZ_Plane, [""])
sketch9.MapMode = "FlatFace"
sketch9.addGeometry([
    Part.LineSegment(App.Vector(19, 4, 0), App.Vector(1, 4, 0)),
    Part.LineSegment(App.Vector(1, 4, 0), App.Vector(1, -4, 0)),
    Part.LineSegment(App.Vector(1, -4, 0), App.Vector(19, -4, 0)),
    Part.LineSegment(App.Vector(19, -4, 0), App.Vector(19, 4, 0)),
], False)
sketch9.addConstraint([
    Sketcher.Constraint("Coincident", 0, 2, 1, 1),
    Sketcher.Constraint("Coincident", 1, 2, 2, 1),
    Sketcher.Constraint("Coincident", 2, 2, 3, 1),
    Sketcher.Constraint("Coincident", 3, 2, 0, 1),
    Sketcher.Constraint("Horizontal", 0),
    Sketcher.Constraint("Vertical", 1),
    Sketcher.Constraint("Horizontal", 2),
    Sketcher.Constraint("Vertical", 3),
    Sketcher.Constraint("DistanceX", 0, 2, 0, 1, 18.5),
    Sketcher.Constraint("DistanceY", 1, 2, 1, 1, 8.3),
    Sketcher.Constraint("DistanceX", -1, 1, 0, 2, 0.75),
    Sketcher.Constraint("DistanceY", -1, 1, 0, 2, 4.15),
])
pocket7 = doc.addObject("PartDesign::Pocket", "Pocket006")
body.addObject(pocket7)
pocket7.Profile = sketch9
pocket7.Length = 3
pocket7.Reversed = True

# Sketch on XY plane
sketch10 = doc.addObject("Sketcher::SketchObject", "Sketch009")
body.addObject(sketch10)
sketch10.AttachmentSupport = (doc.XY_Plane, [""])
sketch10.MapMode = "FlatFace"
sketch10.addGeometry([
    Part.LineSegment(App.Vector(-1.97, 27.06, 0), App.Vector(-1.97, 26.31, 0)),  # 0
    Part.LineSegment(App.Vector(-1.97, 26.31, 0), App.Vector(0, 26.31, 0)),  # 1
    Part.LineSegment(App.Vector(0, 26.31, 0), App.Vector(0, 27.06, 0)),  # 2
    Part.LineSegment(App.Vector(0, 27.06, 0), App.Vector(-1.05, 27.06, 0)),  # 3
    Part.ArcOfCircle(Part.Circle(App.Vector(-1.05, 27.16, 0), App.Vector(0, 0, 1), 0.1), math.radians(169), math.radians(270)),  # 4
    Part.LineSegment(App.Vector(-1.15, 27.18, 0), App.Vector(-1.04, 27.75, 0)),  # 5
    Part.ArcOfCircle(Part.Circle(App.Vector(-1.08, 27.76, 0), App.Vector(0, 0, 1), 0.05), math.radians(-11), math.radians(90)),  # 6
    Part.LineSegment(App.Vector(-1.08, 27.81, 0), App.Vector(-1.32, 27.81, 0)),  # 7
    Part.ArcOfCircle(Part.Circle(App.Vector(-1.32, 27.61, 0), App.Vector(0, 0, 1), 0.2), math.radians(90), math.radians(144)),  # 8
    Part.LineSegment(App.Vector(-1.48, 27.73, 0), App.Vector(-1.97, 27.06, 0)),  # 9
], False)
sketch10.addConstraint([
    Sketcher.Constraint("Coincident", 0, 2, 1, 1),
    Sketcher.Constraint("Coincident", 1, 2, 2, 1),
    Sketcher.Constraint("Coincident", 2, 2, 3, 1),
    Sketcher.Constraint("Tangent", 3, 2, 4, 2),
    Sketcher.Constraint("Tangent", 4, 1, 5, 1),
    Sketcher.Constraint("Tangent", 5, 2, 6, 1),
    Sketcher.Constraint("Tangent", 6, 2, 7, 1),
    Sketcher.Constraint("Tangent", 7, 2, 8, 1),
    Sketcher.Constraint("Tangent", 8, 2, 9, 1),
    Sketcher.Constraint("Coincident", 9, 2, 0, 1),
    Sketcher.Constraint("Vertical", 0),
    Sketcher.Constraint("Horizontal", 1),
    Sketcher.Constraint("Vertical", 2),
    Sketcher.Constraint("Horizontal", 3),
    Sketcher.Constraint("Horizontal", 7),
    Sketcher.Constraint("PointOnObject", 1, 2, -2),
    Sketcher.Constraint("Horizontal", 3, 2, 9, 2),
    Sketcher.Constraint("Radius", 4, 0.1),
    Sketcher.Constraint("Radius", 8, 0.2),
    Sketcher.Constraint("Angle", 5, Q("79 deg")),
    Sketcher.Constraint("Angle", 9, Q("-126 deg")),
    Sketcher.Constraint("Radius", 6, 0.05),
    Sketcher.Constraint("DistanceX", 1, 1, 1, 2, 1.97),
    Sketcher.Constraint("DistanceY", 0, 2, 0, 1, 0.75),
    Sketcher.Constraint("DistanceY", 4, 3, 6, 3, 0.6),
    Sketcher.Constraint("DistanceY", -1, 1, 4, 3, 27.16),
    Sketcher.Constraint("DistanceX", 3, 2, 3, 1, 1.04869),
])
pad3 = doc.addObject("PartDesign::Pad", "Pad002")
body.addObject(pad3)
pad3.Profile = sketch10
pad3.Type = "TwoLengths"
pad3.Length = 3.6
pad3.Length2 = 3.6

# Sketch on XZ plane
sketch11 = doc.addObject("Sketcher::SketchObject", "Sketch010")
body.addObject(sketch11)
sketch11.AttachmentSupport = (doc.XZ_Plane, [""])
sketch11.MapMode = "FlatFace"
sketch11.addGeometry([
    Part.LineSegment(App.Vector(-3, -2.2, 0), App.Vector(-3, 2.2, 0)),
    Part.LineSegment(App.Vector(-3, 2.2, 0), App.Vector(0, 2.2, 0)),
    Part.LineSegment(App.Vector(0, 2.2, 0), App.Vector(0, -2.2, 0)),
    Part.LineSegment(App.Vector(0, -2.2, 0), App.Vector(-3, -2.2, 0)),
], False)
sketch11.addConstraint([
    Sketcher.Constraint("Coincident", 0, 2, 1, 1),
    Sketcher.Constraint("Coincident", 1, 2, 2, 1),
    Sketcher.Constraint("Coincident", 2, 2, 3, 1),
    Sketcher.Constraint("Coincident", 3, 2, 0, 1),
    Sketcher.Constraint("Vertical", 0),
    Sketcher.Constraint("Horizontal", 1),
    Sketcher.Constraint("Vertical", 2),
    Sketcher.Constraint("Horizontal", 3),
    Sketcher.Constraint("Symmetric", 1, 2, 2, 2, -1, 1),
    Sketcher.Constraint("DistanceX", 1, 1, 1, 2, 3.0),
    Sketcher.Constraint("DistanceY", 0, 1, 0, 2, 4.5),
])
pocket8 = doc.addObject("PartDesign::Pocket", "Pocket007")
body.addObject(pocket8)
pocket8.Profile = sketch11
pocket8.Length = 30

# Sketch on YZ plane
sketch12 = doc.addObject("Sketcher::SketchObject", "Sketch011")
body.addObject(sketch12)
sketch12.AttachmentSupport = (doc.YZ_Plane, [""])
sketch12.MapMode = "FlatFace"
sketch12.addGeometry([
    Part.LineSegment(App.Vector(28.5, 0.9, 0), App.Vector(27.7, 0.9, 0)),
    Part.ArcOfCircle(Part.Circle(App.Vector(13.5, 0, 0), App.Vector(0, 0, 1), 14.2), math.radians(-3.52), math.radians(3.52)),
    Part.LineSegment(App.Vector(27.7, -0.9, 0), App.Vector(28.5, -0.9, 0)),
    Part.ArcOfCircle(Part.Circle(App.Vector(13.5, 0, 0), App.Vector(0, 0, 1), 15), math.radians(-3.34), math.radians(3.34)),
], False)
sketch12.addConstraint([
    Sketcher.Constraint("Coincident", 0, 2, 1, 2),
    Sketcher.Constraint("Coincident", 1, 1, 2, 1),
    Sketcher.Constraint("Coincident", 2, 2, 3, 1),
    Sketcher.Constraint("Coincident", 3, 2, 0, 1),
    Sketcher.Constraint("Horizontal", 0),
    Sketcher.Constraint("Horizontal", 2),
    Sketcher.Constraint("Coincident", 3, 3, 1, 3),
    Sketcher.Constraint("Symmetric", 0, 2, 1, 1, -1),
    Sketcher.Constraint("Radius", 3, 15.0),
    Sketcher.Constraint("Radius", 1, 14.25),
    Sketcher.Constraint("DistanceX", -1, 1, 1, 3, 13.5),
    Sketcher.Constraint("DistanceY", 1, 1, 0, 2, 1.75),
])
pad4 = doc.addObject("PartDesign::Pad", "Pad003")
body.addObject(pad4)
pad4.Profile = sketch12
pad4.Length = 1.85
pad4.Reversed = True

# Sketch on XZ plane
sketch13 = doc.addObject("Sketcher::SketchObject", "Sketch012")
body.addObject(sketch13)
sketch13.AttachmentSupport = (doc.XZ_Plane, [""])
sketch13.MapMode = "FlatFace"
sketch13.addGeometry([
    Part.LineSegment(App.Vector(-3.9, 0.9, 0), App.Vector(-1.3, 0.9, 0)),  # 0
    Part.LineSegment(App.Vector(-1.3, 0.9, 0), App.Vector(-1.9, 0.3, 0)),  # 1
    Part.LineSegment(App.Vector(-1.9, 0.3, 0), App.Vector(-1.9, -0.3, 0)),  # 2
    Part.LineSegment(App.Vector(-1.9, -0.3, 0), App.Vector(-1.3, -0.9, 0)),  # 3
    Part.LineSegment(App.Vector(-1.3, -0.9, 0), App.Vector(-3.9, -0.9, 0)),  # 4
    Part.LineSegment(App.Vector(-3.9, -0.9, 0), App.Vector(-3.9, 0.9, 0)),  # 5
], False)
sketch13.addConstraint([
    Sketcher.Constraint("Coincident", 0, 2, 1, 1),
    Sketcher.Constraint("Coincident", 1, 2, 2, 1),
    Sketcher.Constraint("Coincident", 2, 2, 3, 1),
    Sketcher.Constraint("Coincident", 3, 2, 4, 1),
    Sketcher.Constraint("Coincident", 4, 2, 5, 1),
    Sketcher.Constraint("Coincident", 5, 2, 0, 1),
    Sketcher.Constraint("Horizontal", 0),
    Sketcher.Constraint("Vertical", 2),
    Sketcher.Constraint("Horizontal", 4),
    Sketcher.Constraint("Vertical", 5),
    Sketcher.Constraint("Symmetric", 0, 2, 3, 2, -1),
    Sketcher.Constraint("Perpendicular", 1, 3),
    Sketcher.Constraint("Equal", 1, 3),
    Sketcher.Constraint("DistanceX", 4, 2, 2, 2, 2.0),
    Sketcher.Constraint("Distance", 1, 0.8),
    Sketcher.Constraint("DistanceY", 5, 1, 5, 2, 1.75),
    Sketcher.Constraint("DistanceX", 1, 2, -1, 1, 1.85),
])
pocket9 = doc.addObject("PartDesign::Pocket", "Pocket008")
body.addObject(pocket9)
pocket9.Profile = sketch13
pocket9.Length = 30

# Sketch on XZ plane
sketch14 = doc.addObject("Sketcher::SketchObject", "Sketch013")
body.addObject(sketch14)
sketch14.AttachmentSupport = (doc.XZ_Plane, [""])
sketch14.MapMode = "FlatFace"
sketch14.addGeometry([
    Part.LineSegment(App.Vector(1.1, -1.2, 0), App.Vector(1.1, 1.2, 0)),  # 0
    Part.ArcOfCircle(Part.Circle(App.Vector(1.4, 1.2, 0), App.Vector(0, 0, 1), 0.3), math.radians(90), math.radians(180)),  # 1
    Part.LineSegment(App.Vector(1.4, 1.5, 0), App.Vector(9.1, 1.5, 0)),  # 2
    Part.LineSegment(App.Vector(9.1, 1.5, 0), App.Vector(9.1, -1.5, 0)),  # 3
    Part.LineSegment(App.Vector(9.1, -1.5, 0), App.Vector(1.4, -1.5, 0)),  # 4
    Part.ArcOfCircle(Part.Circle(App.Vector(1.4, -1.2, 0), App.Vector(0, 0, 1), 0.3), math.radians(-180), math.radians(-90)),  # 5
], False)
sketch14.addConstraint([
    Sketcher.Constraint("Tangent", 0, 2, 1, 2),
    Sketcher.Constraint("Tangent", 1, 1, 2, 1),
    Sketcher.Constraint("Coincident", 2, 2, 3, 1),
    Sketcher.Constraint("Coincident", 3, 2, 4, 1),
    Sketcher.Constraint("Tangent", 4, 2, 5, 2),
    Sketcher.Constraint("Tangent", 5, 1, 0, 1),
    Sketcher.Constraint("Vertical", 0),
    Sketcher.Constraint("Horizontal", 2),
    Sketcher.Constraint("Vertical", 3),
    Sketcher.Constraint("Horizontal", 4),
    Sketcher.Constraint("Equal", 1, 5),
    Sketcher.Constraint("Radius", 1, 0.3),
    Sketcher.Constraint("DistanceY", 3, 2, 3, 1, 3.0),
    Sketcher.Constraint("DistanceX", 2, 1, 2, 2, 7.7),
    Sketcher.Constraint("DistanceX", -1, 1, 1, 3, 1.4),
    Sketcher.Constraint("DistanceY", -1, 1, 1, 3, 1.2),
])
pocket10 = doc.addObject("PartDesign::Pocket", "Pocket009")
body.addObject(pocket10)
pocket10.Profile = sketch14
pocket10.Length = 0.85

doc.recompute()
